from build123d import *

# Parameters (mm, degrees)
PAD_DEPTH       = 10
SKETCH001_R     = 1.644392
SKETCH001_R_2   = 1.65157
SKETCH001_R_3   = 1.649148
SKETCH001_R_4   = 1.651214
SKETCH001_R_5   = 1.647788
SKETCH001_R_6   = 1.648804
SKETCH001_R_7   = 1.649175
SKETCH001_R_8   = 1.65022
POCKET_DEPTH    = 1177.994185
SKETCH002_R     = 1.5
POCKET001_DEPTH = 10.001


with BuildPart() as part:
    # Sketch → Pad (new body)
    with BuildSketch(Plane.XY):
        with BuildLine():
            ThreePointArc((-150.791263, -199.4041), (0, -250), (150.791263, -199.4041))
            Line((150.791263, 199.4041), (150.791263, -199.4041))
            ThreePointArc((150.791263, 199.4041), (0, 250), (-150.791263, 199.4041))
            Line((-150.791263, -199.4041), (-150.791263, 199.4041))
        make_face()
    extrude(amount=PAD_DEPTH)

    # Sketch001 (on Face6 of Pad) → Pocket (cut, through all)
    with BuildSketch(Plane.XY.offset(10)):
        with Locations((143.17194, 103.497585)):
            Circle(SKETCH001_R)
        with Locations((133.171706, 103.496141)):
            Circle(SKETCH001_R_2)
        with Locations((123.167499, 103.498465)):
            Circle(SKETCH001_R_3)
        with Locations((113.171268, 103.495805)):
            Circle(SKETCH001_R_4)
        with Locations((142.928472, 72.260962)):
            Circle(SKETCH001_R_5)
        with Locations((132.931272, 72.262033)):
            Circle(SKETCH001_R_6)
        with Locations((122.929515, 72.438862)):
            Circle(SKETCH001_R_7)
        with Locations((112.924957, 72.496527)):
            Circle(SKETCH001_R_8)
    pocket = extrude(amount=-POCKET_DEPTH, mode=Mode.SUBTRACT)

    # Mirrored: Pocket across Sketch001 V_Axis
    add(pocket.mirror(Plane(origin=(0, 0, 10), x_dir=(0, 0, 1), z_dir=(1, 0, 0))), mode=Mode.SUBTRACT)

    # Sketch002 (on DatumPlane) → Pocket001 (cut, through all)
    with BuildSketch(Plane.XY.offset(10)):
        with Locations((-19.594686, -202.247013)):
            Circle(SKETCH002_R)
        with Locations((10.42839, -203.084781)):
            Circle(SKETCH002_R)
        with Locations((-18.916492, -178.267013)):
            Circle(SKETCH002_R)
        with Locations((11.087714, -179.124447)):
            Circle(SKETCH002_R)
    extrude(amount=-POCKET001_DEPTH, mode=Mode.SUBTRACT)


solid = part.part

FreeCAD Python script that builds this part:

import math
import FreeCAD as App
import Part
import Sketcher

V = App.Vector

doc = App.newDocument("Part")
body = doc.addObject("PartDesign::Body", "Body")

sketch1 = body.newObject("Sketcher::SketchObject", "Sketch")
sketch1.AttachmentSupport = (doc.getObject("XY_Plane"), [""])
sketch1.MapMode = "FlatFace"
sketch1.addGeometry([
    Part.ArcOfCircle(Part.Circle(V(0, 0.000001, 0), V(0, 0, 1), 250.000001), math.radians(-127.096916), math.radians(-52.903084)),
    Part.LineSegment(V(150.791263, -199.4041, 0), V(150.791263, 199.4041, 0)),
    Part.ArcOfCircle(Part.Circle(V(0, -0.000001, 0), V(0, 0, 1), 250.000001), math.radians(52.903084), math.radians(127.096916)),
    Part.LineSegment(V(-150.791263, 199.4041, 0), V(-150.791263, -199.4041, 0)),
], False)
sketch1.addConstraint([
    Sketcher.Constraint("Coincident", 0, 2, 1, 1),
    Sketcher.Constraint("Coincident", 1, 2, 2, 1),
    Sketcher.Constraint("Coincident", 2, 2, 3, 1),
    Sketcher.Constraint("Coincident", 3, 2, 0, 1),
    Sketcher.Constraint("Vertical", 1),
    Sketcher.Constraint("Vertical", 3),
    Sketcher.Constraint("Coincident", 0, 3, -1, 1),
    Sketcher.Constraint("Coincident", 2, 3, -1, 1),
    Sketcher.Constraint("Equal", 0, 2),
    Sketcher.Constraint("Horizontal", 1, 2, 2, 2),
    Sketcher.Constraint("Radius", 0, 250.000001),
    Sketcher.Constraint("DistanceY", 1, 1, 1, 2, 398.8082),
])
pad1 = body.newObject("PartDesign::Pad", "Pad")
pad1.Profile = sketch1
pad1.Length = 10

sketch2 = body.newObject("Sketcher::SketchObject", "Sketch001")
sketch2.AttachmentSupport = (doc.getObject("XY_Plane"), [""])
sketch2.MapMode = "FlatFace"
sketch2.AttachmentOffset = App.Placement(V(0, 0, 10), App.Rotation())
sketch2.addGeometry([
    Part.Circle(V(143.17194, 103.497585, 0), V(0, 0, 1), 1.644392),
    Part.Circle(V(133.171706, 103.496141, 0), V(0, 0, 1), 1.65157),
    Part.Circle(V(123.167499, 103.498465, 0), V(0, 0, 1), 1.649148),
    Part.Circle(V(113.171268, 103.495805, 0), V(0, 0, 1), 1.651214),
    Part.Circle(V(142.928472, 72.260962, 0), V(0, 0, 1), 1.647788),
    Part.Circle(V(132.931272, 72.262033, 0), V(0, 0, 1), 1.648804),
    Part.Circle(V(122.929515, 72.438862, 0), V(0, 0, 1), 1.649175),
    Part.Circle(V(112.924957, 72.496527, 0), V(0, 0, 1), 1.65022),
], False)
sketch2.addConstraint([
    Sketcher.Constraint("Diameter", 1, 3.30314),
    Sketcher.Constraint("Diameter", 6, 3.29835),
    Sketcher.Constraint("Diameter", 7, 3.30044),
    Sketcher.Constraint("Diameter", 0, 3.288784),
    Sketcher.Constraint("Diameter", 2, 3.298296),
    Sketcher.Constraint("Diameter", 3, 3.302428),
    Sketcher.Constraint("Diameter", 4, 3.295576),
    Sketcher.Constraint("Diameter", 5, 3.297608),
    Sketcher.Constraint("DistanceX", -1, 1, 2, 3, 123.167499),
    Sketcher.Constraint("DistanceX", 5, 3, 4, 3, 9.9972),
    Sketcher.Constraint("DistanceY", 4, 3, 6, 3, 0.1779),
    Sketcher.Constraint("DistanceX", -1, 1, 0, 3, 143.17194),
    Sketcher.Constraint("DistanceY", -1, 1, 1, 3, 103.496141),
    Sketcher.Constraint("DistanceX", -1, 1, 4, 3, 142.928472),
    Sketcher.Constraint("DistanceY", -1, 1, 6, 3, 72.438862),
    Sketcher.Constraint("DistanceY", 0, 3, 2, 3, 0.00088),
    Sketcher.Constraint("DistanceX", 3, 3, 2, 3, 9.996231),
    Sketcher.Constraint("DistanceY", 3, 3, 2, 3, 0.00266),
    Sketcher.Constraint("DistanceX", 3, 3, 1, 3, 20.000438),
    Sketcher.Constraint("DistanceY", 4, 3, 5, 3, 0.001071),
    Sketcher.Constraint("DistanceY", 5, 3, 2, 3, 31.236432),
    Sketcher.Constraint("DistanceX", 6, 3, 1, 3, 10.242191),
    Sketcher.Constraint("DistanceX", 7, 3, 3, 3, 0.246311),
    Sketcher.Constraint("DistanceY", 7, 3, 3, 3, 30.999278),
])
pocket1 = body.newObject("PartDesign::Pocket", "Pocket")
pocket1.Profile = sketch2
pocket1.Type = "ThroughAll"
doc.recompute()

mirrored = body.newObject("PartDesign::Mirrored", "Mirrored")
mirrored.Originals = [pocket1]
mirrored.MirrorPlane = (doc.getObject("YZ_Plane"), [""])
body.Tip = mirrored

sketch3 = body.newObject("Sketcher::SketchObject", "Sketch002")
sketch3.AttachmentSupport = (doc.getObject("XY_Plane"), [""])
sketch3.MapMode = "FlatFace"
sketch3.AttachmentOffset = App.Placement(V(0, 0, 10), App.Rotation())
sketch3.addGeometry([
    Part.Circle(V(-19.594686, -202.247013, 0), V(0, 0, 1), 1.5),
    Part.Circle(V(10.42839, -203.084781, 0), V(0, 0, 1), 1.5),
    Part.Circle(V(-18.916492, -178.267013, 0), V(0, 0, 1), 1.5),
    Part.Circle(V(11.087714, -179.124447, 0), V(0, 0, 1), 1.5),
], False)
sketch3.addConstraint([
    Sketcher.Constraint("Equal", 0, 1),
    Sketcher.Constraint("Equal", 1, 2),
    Sketcher.Constraint("Equal", 2, 3),
    Sketcher.Constraint("Diameter", 0, 3.0),
    Sketcher.Constraint("DistanceY", 0, 3, 2, 3, 23.98),
    Sketcher.Constraint("DistanceX", 0, 3, 3, 3, 30.6824),
    Sketcher.Constraint("DistanceX", -1, 1, 1, 3, 10.42839),
    Sketcher.Constraint("DistanceY", 1, 3, -1, 1, 203.084781),
    Sketcher.Constraint("DistanceY", 1, 3, 2, 3, 24.817768),
    Sketcher.Constraint("DistanceX", 0, 3, -1, 1, 19.594686),
    Sketcher.Constraint("DistanceX", 2, 3, -1, 1, 18.916492),
    Sketcher.Constraint("DistanceY", 3, 3, -1, 1, 179.124447),
])
pocket2 = body.newObject("PartDesign::Pocket", "Pocket001")
pocket2.Profile = sketch3
pocket2.Type = "ThroughAll"

doc.recompute()
